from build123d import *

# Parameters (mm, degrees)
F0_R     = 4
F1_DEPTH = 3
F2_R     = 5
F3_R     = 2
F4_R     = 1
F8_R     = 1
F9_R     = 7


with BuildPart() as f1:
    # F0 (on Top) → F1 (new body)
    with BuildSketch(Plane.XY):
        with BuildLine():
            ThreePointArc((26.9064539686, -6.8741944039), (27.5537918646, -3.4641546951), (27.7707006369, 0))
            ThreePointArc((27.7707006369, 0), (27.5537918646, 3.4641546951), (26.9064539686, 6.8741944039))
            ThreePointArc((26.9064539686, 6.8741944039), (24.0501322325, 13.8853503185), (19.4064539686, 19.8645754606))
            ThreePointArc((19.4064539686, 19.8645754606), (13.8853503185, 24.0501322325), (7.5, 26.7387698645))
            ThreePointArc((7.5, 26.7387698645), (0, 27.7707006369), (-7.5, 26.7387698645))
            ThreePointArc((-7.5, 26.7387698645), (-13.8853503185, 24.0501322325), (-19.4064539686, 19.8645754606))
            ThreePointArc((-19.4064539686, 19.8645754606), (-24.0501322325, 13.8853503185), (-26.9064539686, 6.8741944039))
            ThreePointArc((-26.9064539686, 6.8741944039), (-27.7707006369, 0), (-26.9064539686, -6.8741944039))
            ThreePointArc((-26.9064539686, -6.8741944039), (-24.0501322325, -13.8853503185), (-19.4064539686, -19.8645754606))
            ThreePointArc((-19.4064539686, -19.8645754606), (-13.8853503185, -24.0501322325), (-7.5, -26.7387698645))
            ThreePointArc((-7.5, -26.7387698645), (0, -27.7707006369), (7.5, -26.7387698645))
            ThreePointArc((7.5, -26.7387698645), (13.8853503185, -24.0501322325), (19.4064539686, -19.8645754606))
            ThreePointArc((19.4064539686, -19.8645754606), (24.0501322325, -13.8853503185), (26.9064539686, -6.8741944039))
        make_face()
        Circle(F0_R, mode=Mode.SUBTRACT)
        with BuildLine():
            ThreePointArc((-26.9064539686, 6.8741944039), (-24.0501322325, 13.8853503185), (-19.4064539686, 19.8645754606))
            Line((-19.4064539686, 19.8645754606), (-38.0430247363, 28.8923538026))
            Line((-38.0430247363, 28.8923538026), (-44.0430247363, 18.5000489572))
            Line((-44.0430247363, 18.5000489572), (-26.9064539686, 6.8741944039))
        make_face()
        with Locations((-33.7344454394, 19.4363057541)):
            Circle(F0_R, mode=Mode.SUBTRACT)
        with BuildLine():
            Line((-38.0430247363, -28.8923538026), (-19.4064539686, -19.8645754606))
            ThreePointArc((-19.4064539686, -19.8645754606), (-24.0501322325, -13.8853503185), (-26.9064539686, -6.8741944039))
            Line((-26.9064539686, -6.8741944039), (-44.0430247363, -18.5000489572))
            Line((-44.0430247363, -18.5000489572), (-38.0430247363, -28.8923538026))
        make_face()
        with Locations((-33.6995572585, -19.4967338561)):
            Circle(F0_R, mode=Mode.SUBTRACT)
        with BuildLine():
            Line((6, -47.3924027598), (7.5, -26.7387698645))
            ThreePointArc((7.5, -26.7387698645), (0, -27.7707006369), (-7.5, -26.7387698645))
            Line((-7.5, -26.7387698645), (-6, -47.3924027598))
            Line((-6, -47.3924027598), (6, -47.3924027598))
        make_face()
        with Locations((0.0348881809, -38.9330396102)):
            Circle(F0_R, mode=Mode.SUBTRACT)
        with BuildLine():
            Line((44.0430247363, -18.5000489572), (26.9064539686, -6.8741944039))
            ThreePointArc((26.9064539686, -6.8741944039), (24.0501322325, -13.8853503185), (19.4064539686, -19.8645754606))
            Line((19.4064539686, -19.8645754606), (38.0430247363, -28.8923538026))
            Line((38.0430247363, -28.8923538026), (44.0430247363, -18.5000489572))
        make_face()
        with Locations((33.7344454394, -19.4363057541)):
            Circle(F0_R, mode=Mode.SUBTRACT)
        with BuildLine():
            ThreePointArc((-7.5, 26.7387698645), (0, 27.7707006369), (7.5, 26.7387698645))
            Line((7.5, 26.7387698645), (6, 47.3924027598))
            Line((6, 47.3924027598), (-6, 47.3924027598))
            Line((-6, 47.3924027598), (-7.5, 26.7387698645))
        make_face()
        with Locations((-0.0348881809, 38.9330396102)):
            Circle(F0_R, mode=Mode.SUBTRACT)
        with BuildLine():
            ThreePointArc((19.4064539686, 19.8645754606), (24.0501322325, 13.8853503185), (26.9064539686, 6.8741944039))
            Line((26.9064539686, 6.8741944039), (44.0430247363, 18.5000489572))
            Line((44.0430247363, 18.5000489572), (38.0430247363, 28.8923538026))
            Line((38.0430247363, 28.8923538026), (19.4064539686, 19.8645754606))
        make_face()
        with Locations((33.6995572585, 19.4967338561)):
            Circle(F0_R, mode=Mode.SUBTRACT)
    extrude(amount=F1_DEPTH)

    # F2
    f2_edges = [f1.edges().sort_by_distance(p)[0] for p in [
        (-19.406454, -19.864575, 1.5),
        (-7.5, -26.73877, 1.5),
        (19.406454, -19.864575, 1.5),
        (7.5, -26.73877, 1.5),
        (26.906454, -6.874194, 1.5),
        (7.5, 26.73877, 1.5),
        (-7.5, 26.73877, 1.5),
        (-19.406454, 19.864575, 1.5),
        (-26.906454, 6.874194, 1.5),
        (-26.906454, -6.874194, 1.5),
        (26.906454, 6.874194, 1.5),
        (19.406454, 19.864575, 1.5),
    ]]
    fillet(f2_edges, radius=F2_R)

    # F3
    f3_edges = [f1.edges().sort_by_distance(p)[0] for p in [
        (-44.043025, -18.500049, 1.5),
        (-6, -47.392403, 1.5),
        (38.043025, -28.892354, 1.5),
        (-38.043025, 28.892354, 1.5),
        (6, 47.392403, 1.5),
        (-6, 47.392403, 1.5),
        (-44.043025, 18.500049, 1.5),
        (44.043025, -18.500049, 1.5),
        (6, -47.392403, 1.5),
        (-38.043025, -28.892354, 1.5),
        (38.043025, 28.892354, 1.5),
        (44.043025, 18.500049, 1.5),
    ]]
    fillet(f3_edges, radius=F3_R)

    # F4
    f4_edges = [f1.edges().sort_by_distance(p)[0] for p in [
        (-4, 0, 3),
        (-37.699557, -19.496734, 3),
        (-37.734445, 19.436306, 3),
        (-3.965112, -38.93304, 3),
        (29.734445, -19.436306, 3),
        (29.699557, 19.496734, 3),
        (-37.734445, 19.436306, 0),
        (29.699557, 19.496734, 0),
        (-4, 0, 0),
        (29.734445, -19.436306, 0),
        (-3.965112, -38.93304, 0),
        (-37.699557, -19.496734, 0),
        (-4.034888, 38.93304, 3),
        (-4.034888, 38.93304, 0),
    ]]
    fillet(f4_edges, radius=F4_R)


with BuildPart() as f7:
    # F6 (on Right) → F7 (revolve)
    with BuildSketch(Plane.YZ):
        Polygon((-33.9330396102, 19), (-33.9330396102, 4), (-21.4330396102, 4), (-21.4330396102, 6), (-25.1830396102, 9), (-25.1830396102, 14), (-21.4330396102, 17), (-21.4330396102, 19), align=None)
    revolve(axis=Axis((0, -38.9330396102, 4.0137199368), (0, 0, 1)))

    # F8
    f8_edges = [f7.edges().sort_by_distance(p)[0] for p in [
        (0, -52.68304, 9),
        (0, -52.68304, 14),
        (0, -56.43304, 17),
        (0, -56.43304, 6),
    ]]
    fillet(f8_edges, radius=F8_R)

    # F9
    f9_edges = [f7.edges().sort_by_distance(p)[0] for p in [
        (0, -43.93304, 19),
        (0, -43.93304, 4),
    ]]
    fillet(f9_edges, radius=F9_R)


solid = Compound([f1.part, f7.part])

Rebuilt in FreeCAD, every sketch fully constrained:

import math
import FreeCAD as App
import Part
import Sketcher

V = App.Vector
Q = App.Units.Quantity


def edges_at(feature, points):
    """Names of the edges that pass closest to the given points."""
    edges = feature.Shape.Edges
    near = lambda p: min(range(len(edges)), key=lambda i: edges[i].distToShape(Part.Vertex(*p))[0])
    return sorted({f"Edge{near(p) + 1}" for p in points})


def add_polygon(sketch, points):
    """Adds a closed chain of lines whose ends are joined by coincident constraints."""
    first, n = sketch.GeometryCount, len(points)
    for a, b in zip(points, points[1:] + points[:1]):
        sketch.addGeometry(Part.LineSegment(App.Vector(*a, 0), App.Vector(*b, 0)), False)
    for i in range(n):
        sketch.addConstraint(Sketcher.Constraint("Coincident", first + i, 2, first + (i + 1) % n, 1))

doc = App.newDocument("Part")
body = doc.addObject("PartDesign::Body", "Body")

# Sketch on XY plane
sketch1 = body.newObject("Sketcher::SketchObject", "Sketch")
sketch1.AttachmentSupport = (doc.getObject("XY_Plane"), [""])
sketch1.MapMode = "FlatFace"
sketch1.addGeometry([
    Part.ArcOfCircle(Part.Circle(V(0, 0, 0), V(0, 0, 1), 27.8), math.radians(-14.33), math.radians(0)),  # 0
    Part.ArcOfCircle(Part.Circle(V(0, 0, 0), V(0, 0, 1), 27.8), math.radians(0), math.radians(14.33)),  # 1
    Part.LineSegment(V(26.9, 6.9, 0), V(44, 18.5, 0)),  # 2
    Part.LineSegment(V(44, 18.5, 0), V(38, 28.9, 0)),  # 3
    Part.LineSegment(V(38, 28.9, 0), V(19.4, 19.9, 0)),  # 4
    Part.ArcOfCircle(Part.Circle(V(0, 0, 0), V(0, 0, 1), 27.8), math.radians(46), math.radians(74)),  # 5
    Part.LineSegment(V(7.5, 26.7, 0), V(6, 47.4, 0)),  # 6
    Part.LineSegment(V(6, 47.4, 0), V(-6, 47.4, 0)),  # 7
    Part.LineSegment(V(-6, 47.4, 0), V(-7.5, 26.7, 0)),  # 8
    Part.ArcOfCircle(Part.Circle(V(0, 0, 0), V(0, 0, 1), 27.8), math.radians(106), math.radians(134)),  # 9
    Part.LineSegment(V(-19.4, 19.9, 0), V(-38, 28.9, 0)),  # 10
    Part.LineSegment(V(-38, 28.9, 0), V(-44, 18.5, 0)),  # 11
    Part.LineSegment(V(-44, 18.5, 0), V(-26.9, 6.9, 0)),  # 12
    Part.ArcOfCircle(Part.Circle(V(0, 0, 0), V(0, 0, 1), 27.8), math.radians(166), math.radians(194)),  # 13
    Part.LineSegment(V(-26.9, -6.9, 0), V(-44, -18.5, 0)),  # 14
    Part.LineSegment(V(-44, -18.5, 0), V(-38, -28.9, 0)),  # 15
    Part.LineSegment(V(-38, -28.9, 0), V(-19.4, -19.9, 0)),  # 16
    Part.ArcOfCircle(Part.Circle(V(0, 0, 0), V(0, 0, 1), 27.8), math.radians(-134), math.radians(-106)),  # 17
    Part.LineSegment(V(-7.5, -26.7, 0), V(-6, -47.4, 0)),  # 18
    Part.LineSegment(V(-6, -47.4, 0), V(6, -47.4, 0)),  # 19
    Part.LineSegment(V(6, -47.4, 0), V(7.5, -26.7, 0)),  # 20
    Part.ArcOfCircle(Part.Circle(V(0, 0, 0), V(0, 0, 1), 27.8), math.radians(-74), math.radians(-46)),  # 21
    Part.LineSegment(V(19.4, -19.9, 0), V(38, -28.9, 0)),  # 22
    Part.LineSegment(V(38, -28.9, 0), V(44, -18.5, 0)),  # 23
    Part.LineSegment(V(44, -18.5, 0), V(26.9, -6.9, 0)),  # 24
    Part.Circle(V(-33.7, -19.5, 0), V(0, 0, 1), 4),  # 25
    Part.Circle(V(0, -38.9, 0), V(0, 0, 1), 4),  # 26
    Part.Circle(V(33.7, -19.4, 0), V(0, 0, 1), 4),  # 27
    Part.Circle(V(-33.7, 19.4, 0), V(0, 0, 1), 4),  # 28
    Part.Circle(V(0, 38.9, 0), V(0, 0, 1), 4),  # 29
    Part.Circle(V(0, 0, 0), V(0, 0, 1), 4),  # 30
    Part.Circle(V(33.7, 19.5, 0), V(0, 0, 1), 4),  # 31
], False)
sketch1.addConstraint([
    Sketcher.Constraint("Tangent", 0, 2, 1, 1),
    Sketcher.Constraint("Coincident", 1, 2, 2, 1),
    Sketcher.Constraint("Coincident", 2, 2, 3, 1),
    Sketcher.Constraint("Coincident", 3, 2, 4, 1),
    Sketcher.Constraint("Coincident", 4, 2, 5, 1),
    Sketcher.Constraint("Coincident", 5, 2, 6, 1),
    Sketcher.Constraint("Coincident", 6, 2, 7, 1),
    Sketcher.Constraint("Coincident", 7, 2, 8, 1),
    Sketcher.Constraint("Coincident", 8, 2, 9, 1),
    Sketcher.Constraint("Coincident", 9, 2, 10, 1),
    Sketcher.Constraint("Coincident", 10, 2, 11, 1),
    Sketcher.Constraint("Coincident", 11, 2, 12, 1),
    Sketcher.Constraint("Coincident", 12, 2, 13, 1),
    Sketcher.Constraint("Coincident", 13, 2, 14, 1),
    Sketcher.Constraint("Coincident", 14, 2, 15, 1),
    Sketcher.Constraint("Coincident", 15, 2, 16, 1),
    Sketcher.Constraint("Coincident", 16, 2, 17, 1),
    Sketcher.Constraint("Coincident", 17, 2, 18, 1),
    Sketcher.Constraint("Coincident", 18, 2, 19, 1),
    Sketcher.Constraint("Coincident", 19, 2, 20, 1),
    Sketcher.Constraint("Coincident", 20, 2, 21, 1),
    Sketcher.Constraint("Coincident", 21, 2, 22, 1),
    Sketcher.Constraint("Coincident", 22, 2, 23, 1),
    Sketcher.Constraint("Coincident", 23, 2, 24, 1),
    Sketcher.Constraint("Coincident", 24, 2, 0, 1),
    Sketcher.Constraint("Horizontal", 7),
    Sketcher.Constraint("Horizontal", 19),
    Sketcher.Constraint("Coincident", 0, 3, -1, 1),
    Sketcher.Constraint("Coincident", 5, 3, -1, 1),
    Sketcher.Constraint("Coincident", 9, 3, -1, 1),
    Sketcher.Constraint("Coincident", 13, 3, -1, 1),
    Sketcher.Constraint("Coincident", 17, 3, -1, 1),
    Sketcher.Constraint("Coincident", 21, 3, -1, 1),
    Sketcher.Constraint("Coincident", 30, 3, -1, 1),
    Sketcher.Constraint("Equal", 0, 1),
    Sketcher.Constraint("Equal", 1, 5),
    Sketcher.Constraint("Equal", 5, 9),
    Sketcher.Constraint("Equal", 9, 13),
    Sketcher.Constraint("Equal", 13, 17),
    Sketcher.Constraint("Equal", 17, 21),
    Sketcher.Constraint("Equal", 25, 26),
    Sketcher.Constraint("Equal", 26, 27),
    Sketcher.Constraint("Equal", 27, 28),
    Sketcher.Constraint("Equal", 28, 29),
    Sketcher.Constraint("Equal", 29, 30),
    Sketcher.Constraint("Equal", 30, 31),
    Sketcher.Constraint("Symmetric", 27, 3, 28, 3, -1, 1),
    Sketcher.Constraint("Symmetric", 26, 3, 29, 3, -1, 1),
    Sketcher.Constraint("Symmetric", 25, 3, 31, 3, -1, 1),
    Sketcher.Constraint("Symmetric", 2, 2, 14, 2, -1, 1),
    Sketcher.Constraint("Symmetric", 3, 2, 15, 2, -1, 1),
    Sketcher.Constraint("Symmetric", 6, 2, 18, 2, -1, 1),
    Sketcher.Constraint("Symmetric", 10, 2, 22, 2, -1, 1),
    Sketcher.Constraint("Symmetric", 11, 2, 23, 2, -1, 1),
    Sketcher.Constraint("Symmetric", 3, 2, 10, 2, -2),
    Sketcher.Constraint("Symmetric", 2, 2, 11, 2, -2),
    Sketcher.Constraint("PointOnObject", 0, 2, -1),
    Sketcher.Constraint("Parallel", 2, 14),
    Sketcher.Constraint("Parallel", 4, 16),
    Sketcher.Constraint("Parallel", 6, 18),
    Sketcher.Constraint("Parallel", 8, 20),
    Sketcher.Constraint("Parallel", 10, 22),
    Sketcher.Constraint("Parallel", 12, 24),
    Sketcher.Constraint("Horizontal", 5, 2, 8, 2),
    Sketcher.Constraint("Horizontal", 4, 2, 9, 2),
    Sketcher.Constraint("Horizontal", 1, 2, 12, 2),
    Sketcher.Constraint("Horizontal", 17, 2, 20, 2),
    Sketcher.Constraint("Vertical", 7, 2, 18, 2),
    Sketcher.Constraint("Equal", 2, 4),
    Sketcher.Constraint("Equal", 4, 6),
    Sketcher.Constraint("Diameter", 25, 8.0),
    Sketcher.Constraint("DistanceX", 7, 2, 7, 1, 12.0),
    Sketcher.Constraint("Angle", 3, Q("120 deg")),
    Sketcher.Constraint("Distance", 3, 12.0),
    Sketcher.Constraint("DistanceX", 8, 2, 5, 2, 15.0),
    Sketcher.Constraint("Radius", 0, 27.770701),
    Sketcher.Constraint("DistanceX", 4, 2, 1, 2, 7.5),
    Sketcher.Constraint("DistanceY", 27, 3, 1, 2, 26.3105),
    Sketcher.Constraint("Distance", 2, 20.708031),
    Sketcher.Constraint("DistanceX", -1, 1, 26, 3, 0.034888),
    Sketcher.Constraint("DistanceY", 26, 3, -1, 1, 38.93304),
    Sketcher.Constraint("DistanceY", -1, 1, 2, 2, 18.500049),
    Sketcher.Constraint("DistanceX", 28, 3, 25, 3, 0.034888),
    Sketcher.Constraint("DistanceY", 25, 3, 28, 3, 38.93304),
    Sketcher.Constraint("DistanceX", 1, 2, 27, 3, 6.827991),
])
pad1 = body.newObject("PartDesign::Pad", "Pad")
pad1.Profile = sketch1
pad1.Length = 3
doc.recompute()

fillet = body.newObject("PartDesign::Fillet", "Fillet")
fillet.Base = (pad1, edges_at(pad1, [
    (-19.406, -19.865, 1.5),
    (-7.5, -26.739, 1.5),
    (19.406, -19.865, 1.5),
    (7.5, -26.739, 1.5),
    (26.906, -6.874, 1.5),
    (7.5, 26.739, 1.5),
    (-7.5, 26.739, 1.5),
    (-19.406, 19.865, 1.5),
    (-26.906, 6.874, 1.5),
    (-26.906, -6.874, 1.5),
    (26.906, 6.874, 1.5),
    (19.406, 19.865, 1.5),
]))
fillet.Radius = 5
doc.recompute()

fillet2 = body.newObject("PartDesign::Fillet", "Fillet001")
fillet2.Base = (fillet, edges_at(fillet, [
    (-44.043, -18.5, 1.5),
    (-6, -47.392, 1.5),
    (38.043, -28.892, 1.5),
    (-38.043, 28.892, 1.5),
    (6, 47.392, 1.5),
    (-6, 47.392, 1.5),
    (-44.043, 18.5, 1.5),
    (44.043, -18.5, 1.5),
    (6, -47.392, 1.5),
    (-38.043, -28.892, 1.5),
    (38.043, 28.892, 1.5),
    (44.043, 18.5, 1.5),
]))
fillet2.Radius = 2
doc.recompute()

fillet3 = body.newObject("PartDesign::Fillet", "Fillet002")
fillet3.Base = (fillet2, edges_at(fillet2, [
    (-4, 0, 3),
    (-37.7, -19.497, 3),
    (-37.734, 19.436, 3),
    (-3.965, -38.933, 3),
    (29.734, -19.436, 3),
    (29.7, 19.497, 3),
    (-37.734, 19.436, 0),
    (29.7, 19.497, 0),
    (-4, 0, 0),
    (29.734, -19.436, 0),
    (-3.965, -38.933, 0),
    (-37.7, -19.497, 0),
    (-4.035, 38.933, 3),
    (-4.035, 38.933, 0),
]))
fillet3.Radius = 1
body2 = doc.addObject("PartDesign::Body", "Body001")

# Sketch on YZ plane
sketch2 = body2.newObject("Sketcher::SketchObject", "Sketch001")
sketch2.AttachmentSupport = (doc.getObject("YZ_Plane001"), [""])
sketch2.MapMode = "FlatFace"
add_polygon(sketch2, [(-33.9, 19), (-33.9, 4), (-21.4, 4), (-21.4, 6), (-25.2, 9), (-25.2, 14), (-21.4, 17), (-21.4, 19)])  # lines 0-7
sketch2.addGeometry(Part.LineSegment(V(-38.9, 4, 0), V(-38.9, 19, 0)), True)  # axis
sketch2.addConstraint([
    Sketcher.Constraint("Vertical", 0),
    Sketcher.Constraint("Horizontal", 1),
    Sketcher.Constraint("Vertical", 2),
    Sketcher.Constraint("Vertical", 4),
    Sketcher.Constraint("Vertical", 6),
    Sketcher.Constraint("Horizontal", 7),
    Sketcher.Constraint("Vertical", 8),
    Sketcher.Constraint("Horizontal", 1, 2, 8, 1),
    Sketcher.Constraint("Horizontal", 7, 2, 8, 2),
    Sketcher.Constraint("Vertical", 2, 2, 5, 2),
    Sketcher.Constraint("Equal", 2, 6),
    Sketcher.Constraint("Equal", 3, 5),
    Sketcher.Constraint("DistanceY", 0, 2, 0, 1, 15.0),
    Sketcher.Constraint("DistanceY", 2, 1, 2, 2, 2.0),
    Sketcher.Constraint("DistanceY", 4, 1, 4, 2, 5.0),
    Sketcher.Constraint("DistanceX", 1, 1, 1, 2, 12.5),
    Sketcher.Constraint("DistanceY", -1, 1, 0, 2, 4.0),
    Sketcher.Constraint("DistanceX", 8, 1, 0, 2, 5.0),
    Sketcher.Constraint("DistanceX", 3, 2, 2, 2, 3.75),
    Sketcher.Constraint("DistanceX", 0, 2, -1, 1, 33.93304),
])
revolution = body2.newObject("PartDesign::Revolution", "Revolution")
revolution.Profile = sketch2
revolution.ReferenceAxis = (sketch2, ["Axis0"])
revolution.Angle = 360
doc.recompute()

fillet4 = body2.newObject("PartDesign::Fillet", "Fillet003")
fillet4.Base = (revolution, edges_at(revolution, [
    (0, -52.683, 9),
    (0, -52.683, 14),
    (0, -56.433, 17),
    (0, -56.433, 6),
]))
fillet4.Radius = 1
doc.recompute()

fillet5 = body2.newObject("PartDesign::Fillet", "Fillet004")
fillet5.Base = (fillet4, edges_at(fillet4, [(0, -43.933, 19), (0, -43.933, 4)]))
fillet5.Radius = 7

doc.recompute()
